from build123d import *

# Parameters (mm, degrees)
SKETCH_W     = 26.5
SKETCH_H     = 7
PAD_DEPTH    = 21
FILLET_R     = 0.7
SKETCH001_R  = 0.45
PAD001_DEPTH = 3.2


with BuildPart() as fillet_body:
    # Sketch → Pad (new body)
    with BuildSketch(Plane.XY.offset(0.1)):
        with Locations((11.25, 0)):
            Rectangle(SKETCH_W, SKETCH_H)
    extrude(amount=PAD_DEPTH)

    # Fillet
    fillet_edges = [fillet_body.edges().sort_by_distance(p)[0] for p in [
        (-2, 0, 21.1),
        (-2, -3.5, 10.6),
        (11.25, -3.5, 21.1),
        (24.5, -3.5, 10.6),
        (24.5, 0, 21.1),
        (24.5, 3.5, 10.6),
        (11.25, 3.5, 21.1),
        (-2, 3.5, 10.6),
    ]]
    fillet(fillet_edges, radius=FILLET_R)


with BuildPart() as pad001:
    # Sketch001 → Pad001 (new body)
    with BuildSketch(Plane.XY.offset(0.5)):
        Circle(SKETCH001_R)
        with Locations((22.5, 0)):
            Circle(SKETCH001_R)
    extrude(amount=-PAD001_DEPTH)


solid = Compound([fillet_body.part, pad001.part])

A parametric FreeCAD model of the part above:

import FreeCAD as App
import Part
import Sketcher

V = App.Vector
Q = App.Units.Quantity


def edges_at(feature, points):
    """Names of the edges that pass closest to the given points."""
    edges = feature.Shape.Edges
    near = lambda p: min(range(len(edges)), key=lambda i: edges[i].distToShape(Part.Vertex(*p))[0])
    return sorted({f"Edge{near(p) + 1}" for p in points})


def add_polygon(sketch, points):
    """Adds a closed chain of lines whose ends are joined by coincident constraints."""
    first, n = sketch.GeometryCount, len(points)
    for a, b in zip(points, points[1:] + points[:1]):
        sketch.addGeometry(Part.LineSegment(App.Vector(*a, 0), App.Vector(*b, 0)), False)
    for i in range(n):
        sketch.addConstraint(Sketcher.Constraint("Coincident", first + i, 2, first + (i + 1) % n, 1))

doc = App.newDocument("Part")
params = doc.addObject("Spreadsheet::Sheet", "Params")
for row, (alias, value) in enumerate([
    ("sketch1_height", "7 mm"),
    ("sketch1_width", "26.5 mm"),
    ("pad1_length", "21 mm"),
    ("fillet_radius", "0.7 mm"),
    ("sketch2_diameter", "0.9 mm"),
    ("pad2_length", "3.2 mm"),
], start=1):
    params.set(f"A{row}", alias)
    params.set(f"B{row}", "=" + value)
    params.setAlias(f"B{row}", alias)

body = doc.addObject("PartDesign::Body", "Body")

# Sketch on XY plane
sketch1 = body.newObject("Sketcher::SketchObject", "Sketch")
sketch1.AttachmentSupport = (doc.getObject("XY_Plane"), [""])
sketch1.MapMode = "FlatFace"
sketch1.AttachmentOffset = App.Placement(V(0, 0, 0.1), App.Rotation())
add_polygon(sketch1, [(-2, 4), (-2, -4), (24, -4), (24, 4)])  # lines 0-3
sketch1.addConstraint([
    Sketcher.Constraint("Vertical", 0),
    Sketcher.Constraint("Horizontal", 1),
    Sketcher.Constraint("Vertical", 2),
    Sketcher.Constraint("Horizontal", 3),
    Sketcher.Constraint("DistanceY", 0, 2, 0, 1, Q("7 mm")),
    Sketcher.Constraint("DistanceX", 1, 1, 1, 2, Q("26.5 mm")),
    Sketcher.Constraint("DistanceX", 0, 2, -1, 1, Q("2 mm")),
    Sketcher.Constraint("DistanceY", 0, 2, -1, 1, Q("3.5 mm")),
])
sketch1.setExpression("Constraints[8]", "Params.sketch1_height")
sketch1.setExpression("Constraints[9]", "Params.sketch1_width")
pad1 = body.newObject("PartDesign::Pad", "Pad")
pad1.Profile = sketch1
pad1.setExpression("Length", "Params.pad1_length")
doc.recompute()

fillet = body.newObject("PartDesign::Fillet", "Fillet")
fillet.Base = (pad1, edges_at(pad1, [
    (-2, 0, 21.1),
    (-2, -3.5, 10.6),
    (11.25, -3.5, 21.1),
    (24.5, -3.5, 10.6),
    (24.5, 0, 21.1),
    (24.5, 3.5, 10.6),
    (11.25, 3.5, 21.1),
    (-2, 3.5, 10.6),
]))
fillet.setExpression("Radius", "Params.fillet_radius")
body2 = doc.addObject("PartDesign::Body", "Body001")
body2.AllowCompound = True

# Sketch on XY plane
sketch2 = body2.newObject("Sketcher::SketchObject", "Sketch001")
sketch2.AttachmentSupport = (doc.getObject("XY_Plane001"), [""])
sketch2.MapMode = "FlatFace"
sketch2.AttachmentOffset = App.Placement(V(0, 0, 0.5), App.Rotation())
sketch2.addGeometry([
    Part.Circle(V(0, 0, 0), V(0, 0, 1), 0.45),
    Part.Circle(V(22.5, 0, 0), V(0, 0, 1), 0.45),
], False)
sketch2.addConstraint([
    Sketcher.Constraint("Coincident", 0, 3, -1, 1),
    Sketcher.Constraint("Equal", 0, 1),
    Sketcher.Constraint("PointOnObject", 1, 3, -1),
    Sketcher.Constraint("Diameter", 0, Q("0.9 mm")),
    Sketcher.Constraint("DistanceX", -1, 1, 1, 3, Q("22.5 mm")),
])
sketch2.setExpression("Constraints[3]", "Params.sketch2_diameter")
pad2 = body2.newObject("PartDesign::Pad", "Pad001")
pad2.Profile = sketch2
pad2.setExpression("Length", "Params.pad2_length")
pad2.Reversed = True

doc.recompute()
